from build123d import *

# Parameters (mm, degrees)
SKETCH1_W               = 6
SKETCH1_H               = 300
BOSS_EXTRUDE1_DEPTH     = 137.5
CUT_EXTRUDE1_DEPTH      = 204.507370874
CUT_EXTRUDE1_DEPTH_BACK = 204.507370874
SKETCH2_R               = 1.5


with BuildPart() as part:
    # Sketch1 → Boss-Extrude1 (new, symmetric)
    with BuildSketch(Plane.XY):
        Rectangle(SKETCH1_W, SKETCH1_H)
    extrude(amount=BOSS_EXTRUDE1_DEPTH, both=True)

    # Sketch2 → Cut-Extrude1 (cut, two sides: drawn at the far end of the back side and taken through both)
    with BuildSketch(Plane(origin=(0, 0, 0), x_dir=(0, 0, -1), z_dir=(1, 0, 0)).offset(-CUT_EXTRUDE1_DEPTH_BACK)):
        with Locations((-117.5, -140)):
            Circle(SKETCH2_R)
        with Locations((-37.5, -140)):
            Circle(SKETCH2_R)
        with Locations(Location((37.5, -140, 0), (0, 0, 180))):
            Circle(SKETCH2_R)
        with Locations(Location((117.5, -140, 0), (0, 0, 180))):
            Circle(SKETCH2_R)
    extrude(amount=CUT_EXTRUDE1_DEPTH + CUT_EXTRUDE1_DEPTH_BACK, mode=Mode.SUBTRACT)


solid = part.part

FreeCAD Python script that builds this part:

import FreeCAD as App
import Part
import Sketcher


def add_polygon(sketch, points):
    """Adds a closed chain of lines whose ends are joined by coincident constraints."""
    first, n = sketch.GeometryCount, len(points)
    for a, b in zip(points, points[1:] + points[:1]):
        sketch.addGeometry(Part.LineSegment(App.Vector(*a, 0), App.Vector(*b, 0)), False)
    for i in range(n):
        sketch.addConstraint(Sketcher.Constraint("Coincident", first + i, 2, first + (i + 1) % n, 1))

doc = App.newDocument("Part")
body = doc.addObject("PartDesign::Body", "Body")

# Sketch on XY plane
sketch1 = body.newObject("Sketcher::SketchObject", "Sketch")
sketch1.AttachmentSupport = (doc.getObject("XY_Plane"), [""])
sketch1.MapMode = "FlatFace"
add_polygon(sketch1, [(-3, 150), (-3, -150), (3, -150), (3, 150)])  # lines 0-3
sketch1.addConstraint(Sketcher.Constraint("Vertical", 0))
sketch1.addConstraint(Sketcher.Constraint("Horizontal", 1))
sketch1.addConstraint(Sketcher.Constraint("Vertical", 2))
sketch1.addConstraint(Sketcher.Constraint("Horizontal", 3))
sketch1.addConstraint(Sketcher.Constraint("Symmetric", 0, 2, 2, 2, -1, 1))
sketch1.addConstraint(Sketcher.Constraint("DistanceX", 1, 1, 1, 2, 6.0))
sketch1.addConstraint(Sketcher.Constraint("DistanceY", 0, 2, 0, 1, 300.0))
pad1 = body.newObject("PartDesign::Pad", "Pad")
pad1.Profile = sketch1
pad1.Length = 275
pad1.Midplane = True

# Sketch on YZ plane
sketch2 = body.newObject("Sketcher::SketchObject", "Sketch001")
sketch2.AttachmentSupport = (doc.getObject("YZ_Plane"), [""])
sketch2.MapMode = "FlatFace"
sketch2.addGeometry(Part.Circle(App.Vector(-140, 117.5, 0), App.Vector(0, 0, 1), 1.5), False)
sketch2.addGeometry(Part.Circle(App.Vector(-140, 37.5, 0), App.Vector(0, 0, 1), 1.5), False)
sketch2.addGeometry(Part.Circle(App.Vector(-140, -37.5, 0), App.Vector(0, 0, 1), 1.5), False)
sketch2.addGeometry(Part.Circle(App.Vector(-140, -117.5, 0), App.Vector(0, 0, 1), 1.5), False)
sketch2.addConstraint(Sketcher.Constraint("Equal", 0, 1))
sketch2.addConstraint(Sketcher.Constraint("Equal", 1, 2))
sketch2.addConstraint(Sketcher.Constraint("Equal", 2, 3))
sketch2.addConstraint(Sketcher.Constraint("Symmetric", 1, 3, 2, 3, -1))
sketch2.addConstraint(Sketcher.Constraint("Symmetric", 0, 3, 3, 3, -1))
sketch2.addConstraint(Sketcher.Constraint("Vertical", 0, 3, 1, 3))
sketch2.addConstraint(Sketcher.Constraint("Diameter", 0, 3.0))
sketch2.addConstraint(Sketcher.Constraint("DistanceX", 0, 3, -1, 1, 140.0))
sketch2.addConstraint(Sketcher.Constraint("DistanceY", 1, 3, 0, 3, 80.0))
sketch2.addConstraint(Sketcher.Constraint("DistanceY", 2, 3, 1, 3, 75.0))
pocket1 = body.newObject("PartDesign::Pocket", "Pocket")
pocket1.Profile = sketch2
pocket1.Type = "ThroughAll"
pocket1.Midplane = True

doc.recompute()
